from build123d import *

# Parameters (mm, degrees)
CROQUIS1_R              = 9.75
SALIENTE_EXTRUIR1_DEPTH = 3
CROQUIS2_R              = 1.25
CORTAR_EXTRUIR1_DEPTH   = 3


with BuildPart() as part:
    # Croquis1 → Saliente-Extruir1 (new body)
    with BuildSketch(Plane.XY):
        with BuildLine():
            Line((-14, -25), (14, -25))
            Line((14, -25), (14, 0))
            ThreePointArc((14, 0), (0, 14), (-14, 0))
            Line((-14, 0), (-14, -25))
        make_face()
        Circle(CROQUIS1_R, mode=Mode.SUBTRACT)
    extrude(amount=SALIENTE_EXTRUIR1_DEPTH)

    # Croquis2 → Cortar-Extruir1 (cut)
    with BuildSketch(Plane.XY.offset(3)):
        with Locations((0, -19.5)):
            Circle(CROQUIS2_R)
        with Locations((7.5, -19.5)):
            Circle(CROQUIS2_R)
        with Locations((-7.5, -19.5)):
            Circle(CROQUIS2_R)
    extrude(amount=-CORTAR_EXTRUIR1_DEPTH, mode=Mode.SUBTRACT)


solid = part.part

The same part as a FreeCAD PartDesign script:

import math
import FreeCAD as App
import Part
import Sketcher

doc = App.newDocument("Part")
body = doc.addObject("PartDesign::Body", "Body")

sketch1 = body.newObject("Sketcher::SketchObject", "Sketch")
sketch1.AttachmentSupport = (doc.getObject("XY_Plane"), [""])
sketch1.MapMode = "FlatFace"
sketch1.addGeometry([
    Part.LineSegment(App.Vector(-14, -25, 0), App.Vector(14, -25, 0)),
    Part.LineSegment(App.Vector(14, -25, 0), App.Vector(14, 0, 0)),
    Part.ArcOfCircle(Part.Circle(App.Vector(0, 0, 0), App.Vector(0, 0, 1), 14), math.radians(0), math.radians(180)),
    Part.LineSegment(App.Vector(-14, 0, 0), App.Vector(-14, -25, 0)),
    Part.Circle(App.Vector(0, 0, 0), App.Vector(0, 0, 1), 10),
], False)
sketch1.addConstraint([
    Sketcher.Constraint("Coincident", 0, 2, 1, 1),
    Sketcher.Constraint("Tangent", 1, 2, 2, 1),
    Sketcher.Constraint("Tangent", 2, 2, 3, 1),
    Sketcher.Constraint("Coincident", 3, 2, 0, 1),
    Sketcher.Constraint("Horizontal", 0),
    Sketcher.Constraint("Vertical", 1),
    Sketcher.Constraint("Vertical", 3),
    Sketcher.Constraint("Coincident", 2, 3, -1, 1),
    Sketcher.Constraint("Coincident", 4, 3, -1, 1),
    Sketcher.Constraint("Radius", 2, 14.0),
    Sketcher.Constraint("Diameter", 4, 19.5),
    Sketcher.Constraint("DistanceY", 1, 1, 1, 2, 25.0),
])
pad1 = body.newObject("PartDesign::Pad", "Pad")
pad1.Profile = sketch1
pad1.Length = 3

sketch2 = body.newObject("Sketcher::SketchObject", "Sketch001")
sketch2.AttachmentSupport = (doc.getObject("XY_Plane"), [""])
sketch2.MapMode = "FlatFace"
sketch2.AttachmentOffset = App.Placement(App.Vector(0, 0, 3), App.Rotation())
sketch2.addGeometry([
    Part.Circle(App.Vector(0, -19.5, 0), App.Vector(0, 0, 1), 1.2),
    Part.Circle(App.Vector(7.5, -19.5, 0), App.Vector(0, 0, 1), 1.2),
    Part.Circle(App.Vector(-7.5, -19.5, 0), App.Vector(0, 0, 1), 1.2),
], False)
sketch2.addConstraint([
    Sketcher.Constraint("Equal", 0, 1),
    Sketcher.Constraint("Equal", 1, 2),
    Sketcher.Constraint("Symmetric", 1, 3, 2, 3, -2),
    Sketcher.Constraint("PointOnObject", 0, 3, -2),
    Sketcher.Constraint("Horizontal", 0, 3, 1, 3),
    Sketcher.Constraint("Diameter", 0, 2.5),
    Sketcher.Constraint("DistanceX", 2, 3, 1, 3, 15.0),
    Sketcher.Constraint("DistanceY", 0, 3, -1, 1, 19.5),
])
pocket1 = body.newObject("PartDesign::Pocket", "Pocket")
pocket1.Profile = sketch2
pocket1.Length = 3

doc.recompute()
